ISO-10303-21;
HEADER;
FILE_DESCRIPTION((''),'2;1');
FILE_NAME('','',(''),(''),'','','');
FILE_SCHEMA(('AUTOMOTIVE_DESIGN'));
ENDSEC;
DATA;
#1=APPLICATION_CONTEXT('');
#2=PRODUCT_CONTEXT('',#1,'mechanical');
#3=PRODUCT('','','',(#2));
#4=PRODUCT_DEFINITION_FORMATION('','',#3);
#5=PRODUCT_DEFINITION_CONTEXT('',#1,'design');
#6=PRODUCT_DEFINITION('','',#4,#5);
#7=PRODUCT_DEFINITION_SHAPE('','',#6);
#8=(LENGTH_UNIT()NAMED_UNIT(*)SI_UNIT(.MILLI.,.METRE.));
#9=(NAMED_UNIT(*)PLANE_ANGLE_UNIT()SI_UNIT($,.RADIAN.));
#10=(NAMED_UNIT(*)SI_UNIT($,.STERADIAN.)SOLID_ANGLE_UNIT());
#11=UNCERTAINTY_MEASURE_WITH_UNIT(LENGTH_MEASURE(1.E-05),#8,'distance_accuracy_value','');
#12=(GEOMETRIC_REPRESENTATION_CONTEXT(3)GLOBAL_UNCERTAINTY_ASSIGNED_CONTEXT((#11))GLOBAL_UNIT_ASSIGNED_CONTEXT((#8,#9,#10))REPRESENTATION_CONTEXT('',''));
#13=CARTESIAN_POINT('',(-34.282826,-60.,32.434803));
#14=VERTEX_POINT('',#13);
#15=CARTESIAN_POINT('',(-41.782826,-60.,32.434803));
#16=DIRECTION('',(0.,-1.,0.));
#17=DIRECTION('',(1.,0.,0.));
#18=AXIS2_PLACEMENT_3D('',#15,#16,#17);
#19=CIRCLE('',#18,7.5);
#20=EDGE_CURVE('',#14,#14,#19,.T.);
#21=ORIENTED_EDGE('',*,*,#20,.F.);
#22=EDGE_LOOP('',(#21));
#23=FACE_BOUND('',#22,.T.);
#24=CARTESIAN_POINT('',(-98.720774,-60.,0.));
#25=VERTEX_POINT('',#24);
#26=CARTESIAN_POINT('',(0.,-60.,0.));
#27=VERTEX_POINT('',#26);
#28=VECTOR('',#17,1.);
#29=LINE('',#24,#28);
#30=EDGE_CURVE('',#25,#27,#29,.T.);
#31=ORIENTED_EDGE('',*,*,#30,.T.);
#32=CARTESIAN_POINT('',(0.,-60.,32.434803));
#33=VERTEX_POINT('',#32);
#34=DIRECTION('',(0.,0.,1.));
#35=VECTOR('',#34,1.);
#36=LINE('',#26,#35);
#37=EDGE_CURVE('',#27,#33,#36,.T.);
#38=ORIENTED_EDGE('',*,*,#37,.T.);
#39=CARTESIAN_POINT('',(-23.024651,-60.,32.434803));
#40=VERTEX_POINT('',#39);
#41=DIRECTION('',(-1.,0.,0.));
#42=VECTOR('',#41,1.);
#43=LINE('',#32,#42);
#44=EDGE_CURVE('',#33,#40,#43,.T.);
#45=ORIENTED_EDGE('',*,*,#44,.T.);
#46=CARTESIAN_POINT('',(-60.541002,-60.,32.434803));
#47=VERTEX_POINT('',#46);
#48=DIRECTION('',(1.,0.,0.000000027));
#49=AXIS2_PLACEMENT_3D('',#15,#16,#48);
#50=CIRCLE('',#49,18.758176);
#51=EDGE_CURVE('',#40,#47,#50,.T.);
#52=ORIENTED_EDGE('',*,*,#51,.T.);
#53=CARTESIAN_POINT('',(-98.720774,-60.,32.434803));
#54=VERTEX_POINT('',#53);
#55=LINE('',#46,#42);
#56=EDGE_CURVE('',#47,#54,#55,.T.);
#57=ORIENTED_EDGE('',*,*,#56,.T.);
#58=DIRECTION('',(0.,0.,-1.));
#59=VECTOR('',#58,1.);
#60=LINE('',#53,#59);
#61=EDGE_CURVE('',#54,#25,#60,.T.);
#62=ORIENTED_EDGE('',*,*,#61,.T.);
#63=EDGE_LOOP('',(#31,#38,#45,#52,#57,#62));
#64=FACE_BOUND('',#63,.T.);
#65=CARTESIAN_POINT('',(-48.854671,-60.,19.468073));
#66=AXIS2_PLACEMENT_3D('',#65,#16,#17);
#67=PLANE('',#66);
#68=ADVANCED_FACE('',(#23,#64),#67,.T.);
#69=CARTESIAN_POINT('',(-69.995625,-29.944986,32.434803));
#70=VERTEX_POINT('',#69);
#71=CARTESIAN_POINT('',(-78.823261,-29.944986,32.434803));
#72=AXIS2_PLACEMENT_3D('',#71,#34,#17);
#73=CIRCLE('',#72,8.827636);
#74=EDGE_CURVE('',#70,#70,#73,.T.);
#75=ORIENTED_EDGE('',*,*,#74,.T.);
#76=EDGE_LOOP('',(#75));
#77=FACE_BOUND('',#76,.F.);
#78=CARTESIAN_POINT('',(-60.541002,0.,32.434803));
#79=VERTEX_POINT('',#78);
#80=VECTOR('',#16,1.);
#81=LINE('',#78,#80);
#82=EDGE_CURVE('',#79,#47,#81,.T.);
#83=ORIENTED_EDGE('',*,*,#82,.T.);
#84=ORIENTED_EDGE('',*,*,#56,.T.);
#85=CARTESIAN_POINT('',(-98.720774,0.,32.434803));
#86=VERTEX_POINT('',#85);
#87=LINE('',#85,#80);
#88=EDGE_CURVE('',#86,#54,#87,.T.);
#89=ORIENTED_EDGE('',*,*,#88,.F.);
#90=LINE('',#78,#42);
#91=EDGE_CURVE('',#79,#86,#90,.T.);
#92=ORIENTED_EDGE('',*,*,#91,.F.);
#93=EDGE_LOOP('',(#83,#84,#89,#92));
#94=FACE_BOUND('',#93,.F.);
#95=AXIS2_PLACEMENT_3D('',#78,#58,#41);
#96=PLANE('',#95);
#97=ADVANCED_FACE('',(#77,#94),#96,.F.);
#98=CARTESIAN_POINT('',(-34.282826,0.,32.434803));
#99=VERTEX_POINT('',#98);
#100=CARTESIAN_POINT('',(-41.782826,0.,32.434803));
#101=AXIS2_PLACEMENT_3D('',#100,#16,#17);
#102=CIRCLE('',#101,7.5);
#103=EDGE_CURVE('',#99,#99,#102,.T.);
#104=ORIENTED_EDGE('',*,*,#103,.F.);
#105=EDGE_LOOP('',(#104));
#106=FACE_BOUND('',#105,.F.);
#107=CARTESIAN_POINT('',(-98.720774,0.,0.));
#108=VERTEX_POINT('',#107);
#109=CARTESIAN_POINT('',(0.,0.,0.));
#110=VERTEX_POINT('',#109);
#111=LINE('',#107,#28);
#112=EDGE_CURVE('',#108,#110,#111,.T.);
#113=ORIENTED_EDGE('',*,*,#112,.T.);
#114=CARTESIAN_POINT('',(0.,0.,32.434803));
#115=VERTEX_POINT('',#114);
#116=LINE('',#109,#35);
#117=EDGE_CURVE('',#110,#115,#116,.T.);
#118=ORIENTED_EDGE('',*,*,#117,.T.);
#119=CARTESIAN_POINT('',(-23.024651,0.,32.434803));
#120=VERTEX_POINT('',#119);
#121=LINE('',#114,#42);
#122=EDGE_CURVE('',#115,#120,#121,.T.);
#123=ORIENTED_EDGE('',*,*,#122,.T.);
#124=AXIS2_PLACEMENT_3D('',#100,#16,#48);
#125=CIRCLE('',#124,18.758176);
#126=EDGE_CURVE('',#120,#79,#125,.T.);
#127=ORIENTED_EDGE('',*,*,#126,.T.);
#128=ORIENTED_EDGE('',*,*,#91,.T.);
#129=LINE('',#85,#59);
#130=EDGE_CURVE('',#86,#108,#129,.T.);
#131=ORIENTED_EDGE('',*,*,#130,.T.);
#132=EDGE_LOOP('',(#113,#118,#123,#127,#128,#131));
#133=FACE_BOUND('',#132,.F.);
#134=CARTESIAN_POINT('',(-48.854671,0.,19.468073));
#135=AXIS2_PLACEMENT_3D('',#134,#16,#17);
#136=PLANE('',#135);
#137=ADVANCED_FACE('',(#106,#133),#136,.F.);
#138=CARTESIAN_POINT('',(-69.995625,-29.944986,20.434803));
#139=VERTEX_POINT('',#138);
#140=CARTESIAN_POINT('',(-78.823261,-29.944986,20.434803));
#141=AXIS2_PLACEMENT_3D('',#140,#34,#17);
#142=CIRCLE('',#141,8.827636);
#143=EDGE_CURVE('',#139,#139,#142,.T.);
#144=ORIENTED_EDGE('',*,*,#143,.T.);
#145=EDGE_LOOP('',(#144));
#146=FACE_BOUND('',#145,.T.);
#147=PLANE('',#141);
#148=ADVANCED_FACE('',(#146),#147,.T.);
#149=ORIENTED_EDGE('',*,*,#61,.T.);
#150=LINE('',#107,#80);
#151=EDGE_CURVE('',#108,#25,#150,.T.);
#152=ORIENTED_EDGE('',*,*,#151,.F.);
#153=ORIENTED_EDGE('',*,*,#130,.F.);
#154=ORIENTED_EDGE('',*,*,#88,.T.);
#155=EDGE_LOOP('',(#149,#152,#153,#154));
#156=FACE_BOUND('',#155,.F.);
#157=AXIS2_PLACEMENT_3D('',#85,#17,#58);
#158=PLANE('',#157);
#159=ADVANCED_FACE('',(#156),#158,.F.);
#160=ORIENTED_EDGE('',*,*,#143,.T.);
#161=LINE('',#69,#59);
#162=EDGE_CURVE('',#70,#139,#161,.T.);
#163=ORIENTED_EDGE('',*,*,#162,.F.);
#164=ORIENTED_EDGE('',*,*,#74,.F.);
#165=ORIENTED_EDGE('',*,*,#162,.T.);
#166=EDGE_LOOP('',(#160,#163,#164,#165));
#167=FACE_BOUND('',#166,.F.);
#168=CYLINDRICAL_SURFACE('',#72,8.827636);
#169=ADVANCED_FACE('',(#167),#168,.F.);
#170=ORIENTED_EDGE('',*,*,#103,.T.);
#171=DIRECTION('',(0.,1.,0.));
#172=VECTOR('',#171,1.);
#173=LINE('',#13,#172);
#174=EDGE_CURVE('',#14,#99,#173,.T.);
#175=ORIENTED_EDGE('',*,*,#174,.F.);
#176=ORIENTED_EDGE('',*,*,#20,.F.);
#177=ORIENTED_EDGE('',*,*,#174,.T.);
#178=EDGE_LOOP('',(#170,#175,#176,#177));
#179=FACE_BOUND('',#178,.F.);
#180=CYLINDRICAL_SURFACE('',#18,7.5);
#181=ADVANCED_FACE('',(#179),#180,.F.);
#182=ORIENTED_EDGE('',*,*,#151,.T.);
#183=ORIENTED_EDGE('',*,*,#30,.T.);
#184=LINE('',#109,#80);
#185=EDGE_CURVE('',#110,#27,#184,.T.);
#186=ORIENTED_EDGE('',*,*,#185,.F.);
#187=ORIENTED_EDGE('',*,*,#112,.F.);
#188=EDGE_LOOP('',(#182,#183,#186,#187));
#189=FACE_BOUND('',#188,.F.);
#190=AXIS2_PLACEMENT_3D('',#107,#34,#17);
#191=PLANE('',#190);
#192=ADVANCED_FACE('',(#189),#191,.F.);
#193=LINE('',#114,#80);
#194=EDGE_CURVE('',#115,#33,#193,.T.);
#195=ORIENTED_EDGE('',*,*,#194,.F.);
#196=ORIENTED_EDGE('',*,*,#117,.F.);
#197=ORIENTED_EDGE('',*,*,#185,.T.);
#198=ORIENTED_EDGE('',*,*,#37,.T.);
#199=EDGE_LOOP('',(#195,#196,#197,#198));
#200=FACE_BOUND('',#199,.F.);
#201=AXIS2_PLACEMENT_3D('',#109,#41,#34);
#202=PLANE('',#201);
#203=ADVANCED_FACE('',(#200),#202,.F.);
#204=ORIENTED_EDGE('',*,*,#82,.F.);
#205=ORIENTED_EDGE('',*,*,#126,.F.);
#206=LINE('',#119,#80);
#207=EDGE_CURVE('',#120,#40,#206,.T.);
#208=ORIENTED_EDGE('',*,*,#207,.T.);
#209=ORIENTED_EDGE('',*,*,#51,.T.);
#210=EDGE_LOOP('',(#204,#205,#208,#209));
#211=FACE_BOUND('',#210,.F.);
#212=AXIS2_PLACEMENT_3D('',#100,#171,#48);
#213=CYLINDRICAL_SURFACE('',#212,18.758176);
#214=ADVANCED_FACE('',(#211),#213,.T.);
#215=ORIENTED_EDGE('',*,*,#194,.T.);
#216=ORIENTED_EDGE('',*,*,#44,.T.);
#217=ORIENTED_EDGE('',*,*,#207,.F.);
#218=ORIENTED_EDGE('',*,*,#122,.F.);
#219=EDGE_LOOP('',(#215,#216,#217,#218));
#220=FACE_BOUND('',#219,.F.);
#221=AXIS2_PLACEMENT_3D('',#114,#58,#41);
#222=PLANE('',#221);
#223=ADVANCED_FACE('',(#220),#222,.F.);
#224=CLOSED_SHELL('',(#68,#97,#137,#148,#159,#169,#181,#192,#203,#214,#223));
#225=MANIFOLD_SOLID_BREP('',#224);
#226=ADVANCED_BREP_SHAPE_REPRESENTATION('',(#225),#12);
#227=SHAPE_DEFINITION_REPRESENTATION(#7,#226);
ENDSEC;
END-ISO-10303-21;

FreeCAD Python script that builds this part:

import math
import FreeCAD as App
import Part
import Sketcher

doc = App.newDocument("Part")
body = doc.addObject("PartDesign::Body", "Body")

# Sketch on XZ plane
sketch1 = body.newObject("Sketcher::SketchObject", "Sketch")
sketch1.AttachmentSupport = (doc.getObject("XZ_Plane"), [""])
sketch1.MapMode = "FlatFace"
sketch1.addGeometry([
    Part.LineSegment(App.Vector(-99, 0, 0), App.Vector(0, 0, 0)),  # 0
    Part.LineSegment(App.Vector(0, 0, 0), App.Vector(0, 32, 0)),  # 1
    Part.LineSegment(App.Vector(0, 32, 0), App.Vector(-23, 32, 0)),  # 2
    Part.ArcOfCircle(Part.Circle(App.Vector(-42, 32, 0), App.Vector(0, 0, 1), 19), math.radians(0), math.radians(180)),  # 3
    Part.LineSegment(App.Vector(-61, 32, 0), App.Vector(-99, 32, 0)),  # 4
    Part.LineSegment(App.Vector(-99, 32, 0), App.Vector(-99, 0, 0)),  # 5
], False)
sketch1.addConstraint([
    Sketcher.Constraint("Coincident", 0, 2, 1, 1),
    Sketcher.Constraint("Coincident", 1, 2, 2, 1),
    Sketcher.Constraint("Coincident", 2, 2, 3, 1),
    Sketcher.Constraint("Coincident", 3, 2, 4, 1),
    Sketcher.Constraint("Coincident", 4, 2, 5, 1),
    Sketcher.Constraint("Coincident", 5, 2, 0, 1),
    Sketcher.Constraint("Horizontal", 0),
    Sketcher.Constraint("Vertical", 1),
    Sketcher.Constraint("Horizontal", 2),
    Sketcher.Constraint("Horizontal", 4),
    Sketcher.Constraint("Vertical", 5),
    Sketcher.Constraint("Coincident", 0, 2, -1, 1),
    Sketcher.Constraint("Horizontal", 3, 3, 1, 2),
    Sketcher.Constraint("Horizontal", 2, 2, 3, 2),
    Sketcher.Constraint("DistanceX", 3, 2, -1, 1, 60.541002),
    Sketcher.Constraint("Radius", 3, 18.758176),
    Sketcher.Constraint("DistanceX", 0, 1, 0, 2, 98.720774),
    Sketcher.Constraint("DistanceY", 1, 1, 1, 2, 32.434803),
])
pad1 = body.newObject("PartDesign::Pad", "Pad")
pad1.Profile = sketch1
pad1.Length = 60

# Sketch on XZ plane
sketch2 = body.newObject("Sketcher::SketchObject", "Sketch001")
sketch2.AttachmentSupport = (doc.getObject("XZ_Plane"), [""])
sketch2.MapMode = "FlatFace"
sketch2.AttachmentOffset = App.Placement(App.Vector(0, 0, 60), App.Rotation())
sketch2.addGeometry(Part.Circle(App.Vector(-42, 32, 0), App.Vector(0, 0, 1), 8), False)
sketch2.addConstraint([
    Sketcher.Constraint("Diameter", 0, 15.0),
    Sketcher.Constraint("DistanceX", 0, 3, -1, 1, 41.782826),
    Sketcher.Constraint("DistanceY", -1, 1, 0, 3, 32.434803),
])
pocket1 = body.newObject("PartDesign::Pocket", "Pocket")
pocket1.Profile = sketch2
pocket1.Type = "ThroughAll"

# Sketch on XY plane
sketch3 = body.newObject("Sketcher::SketchObject", "Sketch002")
sketch3.AttachmentSupport = (doc.getObject("XY_Plane"), [""])
sketch3.MapMode = "FlatFace"
sketch3.AttachmentOffset = App.Placement(App.Vector(0, 0, 32.434803), App.Rotation())
sketch3.addGeometry(Part.Circle(App.Vector(-79, -30, 0), App.Vector(0, 0, 1), 9), False)
sketch3.addConstraint([
    Sketcher.Constraint("Diameter", 0, 17.655272),
    Sketcher.Constraint("DistanceX", 0, 3, -1, 1, 78.823261),
    Sketcher.Constraint("DistanceY", 0, 3, -1, 1, 29.944986),
])
pocket2 = body.newObject("PartDesign::Pocket", "Pocket001")
pocket2.Profile = sketch3
pocket2.Length = 12

doc.recompute()
